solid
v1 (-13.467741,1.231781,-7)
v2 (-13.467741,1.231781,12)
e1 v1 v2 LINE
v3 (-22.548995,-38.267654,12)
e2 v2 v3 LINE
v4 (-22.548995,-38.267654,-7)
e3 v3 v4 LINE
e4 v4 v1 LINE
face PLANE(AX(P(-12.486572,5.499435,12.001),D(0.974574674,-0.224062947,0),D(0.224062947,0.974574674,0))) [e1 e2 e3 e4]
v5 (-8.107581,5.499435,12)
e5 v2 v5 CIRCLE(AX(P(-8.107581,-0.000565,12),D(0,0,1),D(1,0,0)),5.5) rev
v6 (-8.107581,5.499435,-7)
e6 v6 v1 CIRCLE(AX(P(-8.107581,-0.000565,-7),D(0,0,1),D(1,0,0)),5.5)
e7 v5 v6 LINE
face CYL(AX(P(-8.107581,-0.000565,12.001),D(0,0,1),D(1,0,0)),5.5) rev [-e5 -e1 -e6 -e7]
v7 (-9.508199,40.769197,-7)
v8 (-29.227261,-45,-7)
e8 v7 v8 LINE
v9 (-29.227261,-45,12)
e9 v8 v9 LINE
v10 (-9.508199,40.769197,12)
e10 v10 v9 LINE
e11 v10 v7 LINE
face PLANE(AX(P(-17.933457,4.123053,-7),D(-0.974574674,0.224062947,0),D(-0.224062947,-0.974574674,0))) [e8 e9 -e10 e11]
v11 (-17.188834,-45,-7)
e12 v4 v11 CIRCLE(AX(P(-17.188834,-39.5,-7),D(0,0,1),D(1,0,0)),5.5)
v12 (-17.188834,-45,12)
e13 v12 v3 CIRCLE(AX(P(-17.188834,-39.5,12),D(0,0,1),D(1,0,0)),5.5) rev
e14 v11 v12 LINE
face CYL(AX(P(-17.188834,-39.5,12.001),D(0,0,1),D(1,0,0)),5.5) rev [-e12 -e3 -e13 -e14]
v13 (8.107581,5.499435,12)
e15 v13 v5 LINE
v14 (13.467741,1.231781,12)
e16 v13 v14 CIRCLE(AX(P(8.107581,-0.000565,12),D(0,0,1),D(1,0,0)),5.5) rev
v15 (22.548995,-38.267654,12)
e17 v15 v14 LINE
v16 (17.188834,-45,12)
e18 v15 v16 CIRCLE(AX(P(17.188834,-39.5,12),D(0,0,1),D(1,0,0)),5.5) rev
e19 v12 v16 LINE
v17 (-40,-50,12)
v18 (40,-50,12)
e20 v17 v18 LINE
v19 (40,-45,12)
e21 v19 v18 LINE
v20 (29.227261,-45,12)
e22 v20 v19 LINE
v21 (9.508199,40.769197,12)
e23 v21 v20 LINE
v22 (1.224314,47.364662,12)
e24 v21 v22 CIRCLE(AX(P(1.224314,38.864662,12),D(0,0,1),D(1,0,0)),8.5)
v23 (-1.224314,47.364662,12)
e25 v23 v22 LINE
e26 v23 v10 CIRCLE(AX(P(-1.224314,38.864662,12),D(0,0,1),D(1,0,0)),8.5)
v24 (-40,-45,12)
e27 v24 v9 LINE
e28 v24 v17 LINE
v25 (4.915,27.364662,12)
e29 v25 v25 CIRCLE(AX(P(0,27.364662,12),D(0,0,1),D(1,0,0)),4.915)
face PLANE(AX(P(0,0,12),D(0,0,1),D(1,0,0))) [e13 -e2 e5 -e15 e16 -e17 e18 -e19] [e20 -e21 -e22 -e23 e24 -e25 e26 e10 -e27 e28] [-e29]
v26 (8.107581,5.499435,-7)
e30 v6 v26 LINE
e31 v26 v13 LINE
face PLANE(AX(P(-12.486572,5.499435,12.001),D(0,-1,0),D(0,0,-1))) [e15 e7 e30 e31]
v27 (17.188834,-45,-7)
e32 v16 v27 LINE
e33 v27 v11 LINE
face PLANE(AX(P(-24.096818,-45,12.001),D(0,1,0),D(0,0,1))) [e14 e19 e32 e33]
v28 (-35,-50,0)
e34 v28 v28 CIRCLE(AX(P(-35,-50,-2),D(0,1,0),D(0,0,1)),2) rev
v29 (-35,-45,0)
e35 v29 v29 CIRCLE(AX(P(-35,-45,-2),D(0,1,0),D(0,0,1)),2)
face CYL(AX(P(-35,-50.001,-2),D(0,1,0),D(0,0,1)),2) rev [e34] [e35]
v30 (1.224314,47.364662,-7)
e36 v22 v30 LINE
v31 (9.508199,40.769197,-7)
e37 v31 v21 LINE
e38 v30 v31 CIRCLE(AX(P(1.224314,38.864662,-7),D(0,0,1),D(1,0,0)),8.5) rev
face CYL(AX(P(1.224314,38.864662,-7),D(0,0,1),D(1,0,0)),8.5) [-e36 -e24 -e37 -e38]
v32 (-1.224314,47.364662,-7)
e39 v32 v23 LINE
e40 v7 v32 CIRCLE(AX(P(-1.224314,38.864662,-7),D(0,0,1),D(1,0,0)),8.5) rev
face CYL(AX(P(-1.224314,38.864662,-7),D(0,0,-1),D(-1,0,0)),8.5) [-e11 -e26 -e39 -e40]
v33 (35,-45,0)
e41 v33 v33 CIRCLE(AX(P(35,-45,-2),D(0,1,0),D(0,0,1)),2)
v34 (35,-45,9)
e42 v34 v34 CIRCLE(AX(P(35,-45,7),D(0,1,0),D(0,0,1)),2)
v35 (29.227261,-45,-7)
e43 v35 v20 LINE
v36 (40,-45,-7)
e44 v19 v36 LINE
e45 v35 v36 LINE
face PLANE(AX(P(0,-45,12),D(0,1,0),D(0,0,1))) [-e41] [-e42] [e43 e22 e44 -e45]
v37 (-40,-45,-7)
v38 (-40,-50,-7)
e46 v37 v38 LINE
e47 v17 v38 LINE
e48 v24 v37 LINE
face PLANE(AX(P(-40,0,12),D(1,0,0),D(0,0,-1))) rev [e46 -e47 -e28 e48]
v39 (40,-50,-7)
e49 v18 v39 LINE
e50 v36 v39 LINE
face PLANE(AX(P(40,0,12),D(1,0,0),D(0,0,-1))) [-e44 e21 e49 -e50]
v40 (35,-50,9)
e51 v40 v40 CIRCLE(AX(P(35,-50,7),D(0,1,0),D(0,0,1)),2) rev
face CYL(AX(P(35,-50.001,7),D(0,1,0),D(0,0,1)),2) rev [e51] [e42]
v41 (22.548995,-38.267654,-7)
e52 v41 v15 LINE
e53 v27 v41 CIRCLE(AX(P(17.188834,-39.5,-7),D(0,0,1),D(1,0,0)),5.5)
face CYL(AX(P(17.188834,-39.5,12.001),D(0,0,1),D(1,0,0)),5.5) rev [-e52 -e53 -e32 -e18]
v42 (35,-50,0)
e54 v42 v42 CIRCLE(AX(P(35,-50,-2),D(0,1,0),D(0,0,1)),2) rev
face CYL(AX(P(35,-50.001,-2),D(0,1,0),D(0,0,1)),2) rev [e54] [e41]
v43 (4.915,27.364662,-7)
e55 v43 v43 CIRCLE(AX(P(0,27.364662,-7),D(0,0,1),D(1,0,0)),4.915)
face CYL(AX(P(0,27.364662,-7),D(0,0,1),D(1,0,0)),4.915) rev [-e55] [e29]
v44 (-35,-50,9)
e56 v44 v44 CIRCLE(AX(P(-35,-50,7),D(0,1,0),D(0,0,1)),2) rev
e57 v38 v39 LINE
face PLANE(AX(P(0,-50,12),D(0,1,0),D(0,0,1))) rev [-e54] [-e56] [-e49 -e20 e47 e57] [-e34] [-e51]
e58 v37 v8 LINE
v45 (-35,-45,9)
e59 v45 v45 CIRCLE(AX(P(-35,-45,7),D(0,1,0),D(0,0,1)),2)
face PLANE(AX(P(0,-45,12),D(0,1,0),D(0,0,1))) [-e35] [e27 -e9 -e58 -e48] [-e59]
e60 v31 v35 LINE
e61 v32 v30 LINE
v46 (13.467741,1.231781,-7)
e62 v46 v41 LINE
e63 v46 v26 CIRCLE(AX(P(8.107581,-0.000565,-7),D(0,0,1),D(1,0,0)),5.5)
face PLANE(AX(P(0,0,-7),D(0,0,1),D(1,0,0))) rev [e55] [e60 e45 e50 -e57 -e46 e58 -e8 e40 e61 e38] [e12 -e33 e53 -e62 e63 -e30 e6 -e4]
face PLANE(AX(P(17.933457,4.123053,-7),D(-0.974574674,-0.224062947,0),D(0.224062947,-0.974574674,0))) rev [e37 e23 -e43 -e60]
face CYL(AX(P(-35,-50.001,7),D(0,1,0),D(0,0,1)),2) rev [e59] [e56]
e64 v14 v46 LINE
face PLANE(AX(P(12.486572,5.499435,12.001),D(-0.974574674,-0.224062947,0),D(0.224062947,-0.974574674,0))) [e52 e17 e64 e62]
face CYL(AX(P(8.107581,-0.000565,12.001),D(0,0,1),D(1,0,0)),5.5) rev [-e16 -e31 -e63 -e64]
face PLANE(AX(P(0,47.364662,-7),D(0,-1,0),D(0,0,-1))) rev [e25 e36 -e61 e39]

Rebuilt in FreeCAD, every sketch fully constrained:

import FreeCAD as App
import Part
import Sketcher

V = App.Vector
Q = App.Units.Quantity


def edges_at(feature, points):
    """Names of the edges that pass closest to the given points."""
    edges = feature.Shape.Edges
    near = lambda p: min(range(len(edges)), key=lambda i: edges[i].distToShape(Part.Vertex(*p))[0])
    return sorted({f"Edge{near(p) + 1}" for p in points})

doc = App.newDocument("Part")
params = doc.addObject("Spreadsheet::Sheet", "Params")
for row, (alias, value) in enumerate([
    ("sketch1_diameter", "9.83 mm"),
    ("pad1_length", "12 mm"),
    ("pad1_length2", "7 mm"),
    ("sketch2_width", "80 mm"),
    ("sketch2_height", "5 mm"),
    ("pad2_length", "12 mm"),
    ("pad2_length2", "7 mm"),
    ("sketch3_diameter", "4 mm"),
    ("sketch4_diameter", "4 mm"),
    ("sketch5_diameter", "4 mm"),
    ("sketch6_diameter", "4 mm"),
    ("fillet_radius", "8.5 mm"),
    ("fillet2_radius", "5.5 mm"),
], start=1):
    params.set(f"A{row}", alias)
    params.set(f"B{row}", "=" + value)
    params.setAlias(f"B{row}", alias)

body = doc.addObject("PartDesign::Body", "Body")

sketch1 = body.newObject("Sketcher::SketchObject", "Sketch")
sketch1.AttachmentSupport = (doc.getObject("XY_Plane"), [""])
sketch1.MapMode = "FlatFace"
sketch1.addGeometry([
    Part.LineSegment(V(8, 47.4, 0), V(-8, 47.4, 0)),
    Part.LineSegment(V(-8, 47.4, 0), V(-29.2, -45, 0)),
    Part.LineSegment(V(-29.2, -45, 0), V(29.2, -45, 0)),
    Part.LineSegment(V(29.2, -45, 0), V(8, 47.4, 0)),
    Part.Circle(V(0, 27.4, 0), V(0, 0, 1), 4.9),
], False)
sketch1.addConstraint([
    Sketcher.Constraint("Coincident", 0, 2, 1, 1),
    Sketcher.Constraint("Coincident", 1, 2, 2, 1),
    Sketcher.Constraint("Coincident", 2, 2, 3, 1),
    Sketcher.Constraint("Coincident", 3, 2, 0, 1),
    Sketcher.Constraint("Horizontal", 0),
    Sketcher.Constraint("Horizontal", 2),
    Sketcher.Constraint("PointOnObject", 4, 3, -2),
    Sketcher.Constraint("Equal", 1, 3),
    Sketcher.Constraint("Diameter", 4, Q("9.83 mm")),
    Sketcher.Constraint("DistanceY", 1, 2, -1, 1, Q("45 mm")),
    Sketcher.Constraint("DistanceY", 4, 3, 0, 2, Q("20 mm")),
    Sketcher.Constraint("DistanceX", 0, 2, 0, 1, Q("15.983691 mm")),
    Sketcher.Constraint("Distance", 1, Q("94.774331 mm")),
    Sketcher.Constraint("DistanceX", 2, 1, 2, 2, Q("58.454523 mm")),
    Sketcher.Constraint("DistanceX", 1, 2, -1, 1, Q("29.227261 mm")),
])
sketch1.setExpression("Constraints[8]", "Params.sketch1_diameter")
pad1 = body.newObject("PartDesign::Pad", "Pad")
pad1.Profile = sketch1
pad1.Type = "TwoLengths"
pad1.setExpression("Length", "Params.pad1_length")
pad1.setExpression("Length2", "Params.pad1_length2")

sketch2 = body.newObject("Sketcher::SketchObject", "Sketch001")
sketch2.AttachmentSupport = (doc.getObject("XY_Plane"), [""])
sketch2.MapMode = "FlatFace"
sketch2.addGeometry([
    Part.LineSegment(V(-40, -45, 0), V(-40, -50, 0)),
    Part.LineSegment(V(-40, -50, 0), V(40, -50, 0)),
    Part.LineSegment(V(40, -50, 0), V(40, -45, 0)),
    Part.LineSegment(V(40, -45, 0), V(-40, -45, 0)),
], False)
sketch2.addConstraint([
    Sketcher.Constraint("Coincident", 0, 2, 1, 1),
    Sketcher.Constraint("Coincident", 1, 2, 2, 1),
    Sketcher.Constraint("Coincident", 2, 2, 3, 1),
    Sketcher.Constraint("Coincident", 3, 2, 0, 1),
    Sketcher.Constraint("Vertical", 0),
    Sketcher.Constraint("Horizontal", 1),
    Sketcher.Constraint("Vertical", 2),
    Sketcher.Constraint("Horizontal", 3),
    Sketcher.Constraint("DistanceX", 1, 1, 1, 2, Q("80 mm")),
    Sketcher.Constraint("DistanceY", 0, 2, 0, 1, Q("5 mm")),
    Sketcher.Constraint("DistanceX", 0, 2, -1, 1, Q("40 mm")),
    Sketcher.Constraint("DistanceY", 0, 2, -1, 1, Q("50 mm")),
])
sketch2.setExpression("Constraints[8]", "Params.sketch2_width")
sketch2.setExpression("Constraints[9]", "Params.sketch2_height")
pad2 = body.newObject("PartDesign::Pad", "Pad001")
pad2.Profile = sketch2
pad2.Type = "TwoLengths"
pad2.setExpression("Length", "Params.pad2_length")
pad2.setExpression("Length2", "Params.pad2_length2")

sketch3 = body.newObject("Sketcher::SketchObject", "Sketch002")
sketch3.AttachmentSupport = (doc.getObject("XZ_Plane"), [""])
sketch3.MapMode = "FlatFace"
sketch3.AttachmentOffset = App.Placement(V(0, 0, 45), App.Rotation())
sketch3.addGeometry(Part.Circle(V(-35, -2, 0), V(0, 0, 1), 2), False)
sketch3.addConstraint([
    Sketcher.Constraint("Diameter", 0, Q("4 mm")),
    Sketcher.Constraint("DistanceX", 0, 3, -1, 1, Q("35 mm")),
    Sketcher.Constraint("DistanceY", 0, 3, -1, 1, Q("2 mm")),
])
sketch3.setExpression("Constraints[0]", "Params.sketch3_diameter")
pocket1 = body.newObject("PartDesign::Pocket", "Pocket")
pocket1.Profile = sketch3
pocket1.Type = "UpToFirst"
pocket1.Reversed = True

sketch4 = body.newObject("Sketcher::SketchObject", "Sketch003")
sketch4.AttachmentSupport = (doc.getObject("XZ_Plane"), [""])
sketch4.MapMode = "FlatFace"
sketch4.AttachmentOffset = App.Placement(V(0, 0, 45), App.Rotation())
sketch4.addGeometry(Part.Circle(V(-35, 7, 0), V(0, 0, 1), 2), False)
sketch4.addConstraint([
    Sketcher.Constraint("Diameter", 0, Q("4 mm")),
    Sketcher.Constraint("DistanceX", 0, 3, -1, 1, Q("35 mm")),
    Sketcher.Constraint("DistanceY", -1, 1, 0, 3, Q("7 mm")),
])
sketch4.setExpression("Constraints[0]", "Params.sketch4_diameter")
pocket2 = body.newObject("PartDesign::Pocket", "Pocket001")
pocket2.Profile = sketch4
pocket2.Type = "UpToFirst"
pocket2.Reversed = True

sketch5 = body.newObject("Sketcher::SketchObject", "Sketch004")
sketch5.AttachmentSupport = (doc.getObject("XZ_Plane"), [""])
sketch5.MapMode = "FlatFace"
sketch5.AttachmentOffset = App.Placement(V(0, 0, 45), App.Rotation())
sketch5.addGeometry(Part.Circle(V(35, -2, 0), V(0, 0, 1), 2), False)
sketch5.addConstraint([
    Sketcher.Constraint("Diameter", 0, Q("4 mm")),
    Sketcher.Constraint("DistanceX", -1, 1, 0, 3, Q("35 mm")),
    Sketcher.Constraint("DistanceY", 0, 3, -1, 1, Q("2 mm")),
])
sketch5.setExpression("Constraints[0]", "Params.sketch5_diameter")
pocket3 = body.newObject("PartDesign::Pocket", "Pocket002")
pocket3.Profile = sketch5
pocket3.Type = "UpToFirst"
pocket3.Reversed = True

sketch6 = body.newObject("Sketcher::SketchObject", "Sketch005")
sketch6.AttachmentSupport = (doc.getObject("XZ_Plane"), [""])
sketch6.MapMode = "FlatFace"
sketch6.AttachmentOffset = App.Placement(V(0, 0, 45), App.Rotation())
sketch6.addGeometry(Part.Circle(V(35, 7, 0), V(0, 0, 1), 2), False)
sketch6.addConstraint([
    Sketcher.Constraint("Diameter", 0, Q("4 mm")),
    Sketcher.Constraint("DistanceX", -1, 1, 0, 3, Q("35 mm")),
    Sketcher.Constraint("DistanceY", -1, 1, 0, 3, Q("7 mm")),
])
sketch6.setExpression("Constraints[0]", "Params.sketch6_diameter")
pocket4 = body.newObject("PartDesign::Pocket", "Pocket003")
pocket4.Profile = sketch6
pocket4.Type = "UpToFirst"
pocket4.Reversed = True

sketch7 = body.newObject("Sketcher::SketchObject", "Sketch006")
sketch7.AttachmentSupport = (doc.getObject("XY_Plane"), [""])
sketch7.MapMode = "FlatFace"
sketch7.addGeometry([
    Part.LineSegment(V(12, 5, 0), V(-12, 5, 0)),
    Part.LineSegment(V(-12, 5, 0), V(-24, -45, 0)),
    Part.LineSegment(V(-24, -45, 0), V(24, -45, 0)),
    Part.LineSegment(V(24, -45, 0), V(12, 5, 0)),
], False)
sketch7.addConstraint([
    Sketcher.Constraint("Coincident", 0, 2, 1, 1),
    Sketcher.Constraint("Coincident", 1, 2, 2, 1),
    Sketcher.Constraint("Coincident", 2, 2, 3, 1),
    Sketcher.Constraint("Coincident", 3, 2, 0, 1),
    Sketcher.Constraint("Horizontal", 0),
    Sketcher.Constraint("Horizontal", 2),
    Sketcher.Constraint("Equal", 1, 3),
    Sketcher.Constraint("DistanceY", 1, 2, -1, 1, Q("45 mm")),
    Sketcher.Constraint("DistanceX", 0, 2, 0, 1, Q("24.973144 mm")),
    Sketcher.Constraint("DistanceX", 2, 1, 2, 2, Q("48.193636 mm")),
    Sketcher.Constraint("DistanceX", 0, 2, -1, 1, Q("12.486572 mm")),
    Sketcher.Constraint("Distance", 1, Q("51.816896 mm")),
])
pocket5 = body.newObject("PartDesign::Pocket", "Pocket004")
pocket5.Profile = sketch7
pocket5.Type = "UpToFirst"

sketch8 = body.newObject("Sketcher::SketchObject", "Sketch007")
sketch8.AttachmentSupport = (doc.getObject("XY_Plane"), [""])
sketch8.MapMode = "FlatFace"
sketch8.addGeometry([
    Part.LineSegment(V(12, 5, 0), V(-12, 5, 0)),
    Part.LineSegment(V(-12, 5, 0), V(-24, -45, 0)),
    Part.LineSegment(V(-24, -45, 0), V(24, -45, 0)),
    Part.LineSegment(V(24, -45, 0), V(12, 5, 0)),
], False)
sketch8.addConstraint([
    Sketcher.Constraint("Coincident", 0, 2, 1, 1),
    Sketcher.Constraint("Coincident", 1, 2, 2, 1),
    Sketcher.Constraint("Coincident", 2, 2, 3, 1),
    Sketcher.Constraint("Coincident", 3, 2, 0, 1),
    Sketcher.Constraint("Horizontal", 0),
    Sketcher.Constraint("Horizontal", 2),
    Sketcher.Constraint("Equal", 1, 3),
    Sketcher.Constraint("DistanceY", 1, 2, -1, 1, Q("45 mm")),
    Sketcher.Constraint("DistanceX", 0, 2, 0, 1, Q("24.973144 mm")),
    Sketcher.Constraint("DistanceX", 2, 1, 2, 2, Q("48.193636 mm")),
    Sketcher.Constraint("DistanceX", 0, 2, -1, 1, Q("12.486572 mm")),
    Sketcher.Constraint("Distance", 1, Q("51.816896 mm")),
])
pocket6 = body.newObject("PartDesign::Pocket", "Pocket005")
pocket6.Profile = sketch8
pocket6.Type = "UpToFirst"
pocket6.Reversed = True
doc.recompute()

fillet = body.newObject("PartDesign::Fillet", "Fillet")
fillet.Base = (pocket6, edges_at(pocket6, [(-7.992, 47.365, 2.5), (7.992, 47.365, 2.5)]))
fillet.setExpression("Radius", "Params.fillet_radius")
doc.recompute()

fillet2 = body.newObject("PartDesign::Fillet", "Fillet001")
fillet2.Base = (fillet, edges_at(fillet, [
    (-12.487, 5.499, 2.5),
    (-24.097, -45, 2.5),
    (24.097, -45, 2.5),
    (12.487, 5.499, 2.5),
]))
fillet2.setExpression("Radius", "Params.fillet2_radius")

doc.recompute()
